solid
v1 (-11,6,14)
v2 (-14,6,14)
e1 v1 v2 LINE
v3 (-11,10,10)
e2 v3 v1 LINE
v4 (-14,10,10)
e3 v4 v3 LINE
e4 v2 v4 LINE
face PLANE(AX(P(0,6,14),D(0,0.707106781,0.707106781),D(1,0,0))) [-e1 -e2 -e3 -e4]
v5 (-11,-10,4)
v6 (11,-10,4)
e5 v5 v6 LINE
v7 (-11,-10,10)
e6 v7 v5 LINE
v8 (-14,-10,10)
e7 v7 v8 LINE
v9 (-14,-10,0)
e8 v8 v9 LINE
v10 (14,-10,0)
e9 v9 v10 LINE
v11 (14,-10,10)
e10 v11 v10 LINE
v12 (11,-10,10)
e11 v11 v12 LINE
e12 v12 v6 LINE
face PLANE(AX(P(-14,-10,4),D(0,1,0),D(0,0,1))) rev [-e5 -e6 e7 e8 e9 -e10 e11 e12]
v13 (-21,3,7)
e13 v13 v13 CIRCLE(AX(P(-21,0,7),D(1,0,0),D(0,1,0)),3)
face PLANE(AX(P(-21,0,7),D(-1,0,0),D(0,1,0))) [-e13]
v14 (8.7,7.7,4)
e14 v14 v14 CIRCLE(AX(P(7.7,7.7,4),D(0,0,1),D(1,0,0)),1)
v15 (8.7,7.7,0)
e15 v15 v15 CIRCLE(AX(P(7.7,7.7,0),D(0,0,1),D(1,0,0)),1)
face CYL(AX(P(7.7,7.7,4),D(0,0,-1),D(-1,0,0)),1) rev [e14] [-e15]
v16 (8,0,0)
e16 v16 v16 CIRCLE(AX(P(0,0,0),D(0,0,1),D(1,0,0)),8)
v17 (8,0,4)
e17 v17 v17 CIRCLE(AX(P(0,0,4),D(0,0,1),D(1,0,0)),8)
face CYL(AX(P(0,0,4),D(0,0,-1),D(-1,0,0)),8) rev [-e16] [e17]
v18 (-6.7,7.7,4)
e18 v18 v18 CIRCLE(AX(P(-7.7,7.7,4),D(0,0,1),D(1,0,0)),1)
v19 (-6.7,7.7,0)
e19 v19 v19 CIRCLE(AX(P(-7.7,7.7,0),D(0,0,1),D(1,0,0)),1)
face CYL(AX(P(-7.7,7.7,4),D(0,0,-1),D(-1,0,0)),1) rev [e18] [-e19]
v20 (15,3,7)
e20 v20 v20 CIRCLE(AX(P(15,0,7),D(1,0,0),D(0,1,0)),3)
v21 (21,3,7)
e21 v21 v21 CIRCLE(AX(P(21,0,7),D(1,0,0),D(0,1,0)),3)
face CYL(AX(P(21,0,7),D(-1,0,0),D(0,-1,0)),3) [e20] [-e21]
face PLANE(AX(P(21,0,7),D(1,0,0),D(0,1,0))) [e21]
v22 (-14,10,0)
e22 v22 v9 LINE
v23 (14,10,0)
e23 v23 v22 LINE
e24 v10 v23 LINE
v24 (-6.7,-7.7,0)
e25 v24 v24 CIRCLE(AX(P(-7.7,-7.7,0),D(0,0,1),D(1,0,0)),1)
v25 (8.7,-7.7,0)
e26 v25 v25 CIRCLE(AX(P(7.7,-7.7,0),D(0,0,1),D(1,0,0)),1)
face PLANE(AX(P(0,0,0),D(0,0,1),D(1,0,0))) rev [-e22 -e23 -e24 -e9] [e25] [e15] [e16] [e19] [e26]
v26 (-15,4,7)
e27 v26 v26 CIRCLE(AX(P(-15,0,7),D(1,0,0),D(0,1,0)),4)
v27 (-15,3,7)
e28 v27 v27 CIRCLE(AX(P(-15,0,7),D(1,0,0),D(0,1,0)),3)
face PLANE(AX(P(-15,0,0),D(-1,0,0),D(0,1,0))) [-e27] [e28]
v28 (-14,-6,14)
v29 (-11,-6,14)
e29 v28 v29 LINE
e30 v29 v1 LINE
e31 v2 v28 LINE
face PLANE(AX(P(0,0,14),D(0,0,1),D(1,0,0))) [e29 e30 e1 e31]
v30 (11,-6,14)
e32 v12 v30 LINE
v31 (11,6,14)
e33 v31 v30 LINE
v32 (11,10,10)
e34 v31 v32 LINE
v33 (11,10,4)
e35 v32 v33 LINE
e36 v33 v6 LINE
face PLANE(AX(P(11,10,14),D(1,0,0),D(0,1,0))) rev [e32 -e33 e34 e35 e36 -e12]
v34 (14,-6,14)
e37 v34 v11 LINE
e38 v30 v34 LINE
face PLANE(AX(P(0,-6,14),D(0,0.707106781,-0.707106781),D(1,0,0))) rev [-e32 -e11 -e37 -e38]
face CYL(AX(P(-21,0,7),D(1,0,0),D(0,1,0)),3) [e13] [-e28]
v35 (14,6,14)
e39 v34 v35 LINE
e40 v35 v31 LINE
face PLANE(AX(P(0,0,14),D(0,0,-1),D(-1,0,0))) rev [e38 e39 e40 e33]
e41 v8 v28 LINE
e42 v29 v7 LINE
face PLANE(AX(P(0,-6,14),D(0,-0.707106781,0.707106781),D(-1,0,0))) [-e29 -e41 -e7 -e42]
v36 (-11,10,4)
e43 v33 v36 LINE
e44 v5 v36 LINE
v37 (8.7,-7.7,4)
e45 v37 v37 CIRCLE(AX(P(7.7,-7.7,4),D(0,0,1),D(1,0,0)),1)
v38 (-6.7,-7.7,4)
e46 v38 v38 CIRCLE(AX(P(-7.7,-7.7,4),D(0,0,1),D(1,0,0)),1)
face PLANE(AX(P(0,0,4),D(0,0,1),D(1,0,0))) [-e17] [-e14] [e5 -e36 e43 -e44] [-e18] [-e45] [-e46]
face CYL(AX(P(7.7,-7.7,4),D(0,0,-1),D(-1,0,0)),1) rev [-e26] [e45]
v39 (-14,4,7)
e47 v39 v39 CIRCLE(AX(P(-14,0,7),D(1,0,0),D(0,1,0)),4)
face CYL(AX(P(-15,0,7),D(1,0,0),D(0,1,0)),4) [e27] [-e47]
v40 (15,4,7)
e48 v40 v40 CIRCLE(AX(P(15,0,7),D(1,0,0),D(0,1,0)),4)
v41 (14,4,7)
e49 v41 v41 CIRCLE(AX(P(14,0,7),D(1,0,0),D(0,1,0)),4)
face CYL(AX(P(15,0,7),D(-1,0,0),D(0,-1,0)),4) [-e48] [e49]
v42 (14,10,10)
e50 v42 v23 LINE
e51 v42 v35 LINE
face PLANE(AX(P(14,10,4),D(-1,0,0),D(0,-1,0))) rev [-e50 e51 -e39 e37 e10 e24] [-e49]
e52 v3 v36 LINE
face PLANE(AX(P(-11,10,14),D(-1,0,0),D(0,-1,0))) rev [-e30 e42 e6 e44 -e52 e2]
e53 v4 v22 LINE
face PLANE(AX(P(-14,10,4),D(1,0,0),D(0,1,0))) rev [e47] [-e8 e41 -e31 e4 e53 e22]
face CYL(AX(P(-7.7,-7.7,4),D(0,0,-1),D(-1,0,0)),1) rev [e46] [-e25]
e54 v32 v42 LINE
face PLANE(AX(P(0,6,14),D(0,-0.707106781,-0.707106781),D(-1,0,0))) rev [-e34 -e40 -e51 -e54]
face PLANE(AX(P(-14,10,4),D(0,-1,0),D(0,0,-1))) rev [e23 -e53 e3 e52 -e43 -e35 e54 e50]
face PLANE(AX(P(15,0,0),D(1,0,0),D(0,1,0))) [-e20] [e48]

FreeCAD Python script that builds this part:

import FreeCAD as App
import Part
import Sketcher

V = App.Vector


def edges_at(feature, points):
    """Names of the edges that pass closest to the given points."""
    edges = feature.Shape.Edges
    near = lambda p: min(range(len(edges)), key=lambda i: edges[i].distToShape(Part.Vertex(*p))[0])
    return sorted({f"Edge{near(p) + 1}" for p in points})


def add_polygon(sketch, points):
    """Adds a closed chain of lines whose ends are joined by coincident constraints."""
    first, n = sketch.GeometryCount, len(points)
    for a, b in zip(points, points[1:] + points[:1]):
        sketch.addGeometry(Part.LineSegment(App.Vector(*a, 0), App.Vector(*b, 0)), False)
    for i in range(n):
        sketch.addConstraint(Sketcher.Constraint("Coincident", first + i, 2, first + (i + 1) % n, 1))

doc = App.newDocument("Part")
body = doc.addObject("PartDesign::Body", "Body")

# Sketch on XY plane
sketch1 = body.newObject("Sketcher::SketchObject", "Sketch")
sketch1.AttachmentSupport = (doc.getObject("XY_Plane"), [""])
sketch1.MapMode = "FlatFace"
add_polygon(sketch1, [(-14, 10), (-14, -10), (14, -10), (14, 10)])  # lines 0-3
sketch1.addGeometry(Part.Circle(V(-7.7, -7.7, 0), V(0, 0, 1), 1), False)  # 4
sketch1.addGeometry(Part.Circle(V(7.7, -7.7, 0), V(0, 0, 1), 1), False)  # 5
sketch1.addGeometry(Part.Circle(V(-7.7, 7.7, 0), V(0, 0, 1), 1), False)  # 6
sketch1.addGeometry(Part.Circle(V(0, 0, 0), V(0, 0, 1), 8), False)  # 7
sketch1.addGeometry(Part.Circle(V(7.7, 7.7, 0), V(0, 0, 1), 1), False)  # 8
sketch1.addConstraint([
    Sketcher.Constraint("Vertical", 0),
    Sketcher.Constraint("Horizontal", 1),
    Sketcher.Constraint("Vertical", 2),
    Sketcher.Constraint("Horizontal", 3),
    Sketcher.Constraint("Coincident", 7, 3, -1, 1),
    Sketcher.Constraint("Equal", 4, 5),
    Sketcher.Constraint("Equal", 5, 6),
    Sketcher.Constraint("Equal", 6, 8),
    Sketcher.Constraint("Symmetric", 5, 3, 6, 3, -1, 1),
    Sketcher.Constraint("Symmetric", 4, 3, 8, 3, -1, 1),
    Sketcher.Constraint("Symmetric", 0, 2, 2, 2, -1, 1),
    Sketcher.Constraint("Symmetric", 4, 3, 5, 3, -2),
    Sketcher.Constraint("Diameter", 4, 2.0),
    Sketcher.Constraint("Diameter", 7, 16.0),
    Sketcher.Constraint("DistanceX", 1, 1, 1, 2, 28.0),
    Sketcher.Constraint("DistanceY", 0, 2, 0, 1, 20.0),
    Sketcher.Constraint("DistanceX", 4, 3, -1, 1, 7.7),
    Sketcher.Constraint("DistanceY", 4, 3, -1, 1, 7.7),
])
pad1 = body.newObject("PartDesign::Pad", "Pad")
pad1.Profile = sketch1
pad1.Length = 4

# Sketch on XY plane
sketch2 = body.newObject("Sketcher::SketchObject", "Sketch001")
sketch2.AttachmentSupport = (doc.getObject("XY_Plane"), [""])
sketch2.MapMode = "FlatFace"
sketch2.AttachmentOffset = App.Placement(V(0, 0, 4), App.Rotation())
add_polygon(sketch2, [(-14, 10), (-14, -10), (-11, -10), (-11, 10)])  # lines 0-3
add_polygon(sketch2, [(11, 10), (11, -10), (14, -10), (14, 10)])  # lines 4-7
sketch2.addConstraint([
    Sketcher.Constraint("Vertical", 0),
    Sketcher.Constraint("Horizontal", 1),
    Sketcher.Constraint("Vertical", 2),
    Sketcher.Constraint("Horizontal", 3),
    Sketcher.Constraint("Vertical", 4),
    Sketcher.Constraint("Horizontal", 5),
    Sketcher.Constraint("Vertical", 6),
    Sketcher.Constraint("Horizontal", 7),
    Sketcher.Constraint("Symmetric", 2, 2, 4, 2, -1, 1),
    Sketcher.Constraint("Symmetric", 0, 2, 6, 2, -1, 1),
    Sketcher.Constraint("Horizontal", 1, 2, 4, 2),
    Sketcher.Constraint("DistanceX", 1, 1, 1, 2, 3.0),
    Sketcher.Constraint("DistanceY", 0, 2, 0, 1, 20.0),
    Sketcher.Constraint("DistanceX", 0, 2, -1, 1, 14.0),
])
pad2 = body.newObject("PartDesign::Pad", "Pad001")
pad2.Profile = sketch2
pad2.Length = 10

# Sketch on YZ plane
sketch3 = body.newObject("Sketcher::SketchObject", "Sketch002")
sketch3.AttachmentSupport = (doc.getObject("YZ_Plane"), [""])
sketch3.MapMode = "FlatFace"
sketch3.AttachmentOffset = App.Placement(V(0, 0, 14), App.Rotation())
sketch3.addGeometry(Part.Circle(V(0, 7, 0), V(0, 0, 1), 4), False)
sketch3.addConstraint([
    Sketcher.Constraint("PointOnObject", 0, 3, -2),
    Sketcher.Constraint("Diameter", 0, 8.0),
    Sketcher.Constraint("DistanceY", -1, 1, 0, 3, 7.0),
])
pad3 = body.newObject("PartDesign::Pad", "Pad002")
pad3.Profile = sketch3
pad3.Length = 1

# Sketch on YZ plane
sketch4 = body.newObject("Sketcher::SketchObject", "Sketch003")
sketch4.AttachmentSupport = (doc.getObject("YZ_Plane"), [""])
sketch4.MapMode = "FlatFace"
sketch4.AttachmentOffset = App.Placement(V(0, 0, 15), App.Rotation())
sketch4.addGeometry(Part.Circle(V(0, 7, 0), V(0, 0, 1), 3), False)
sketch4.addConstraint([
    Sketcher.Constraint("PointOnObject", 0, 3, -2),
    Sketcher.Constraint("Diameter", 0, 6.0),
    Sketcher.Constraint("DistanceY", -1, 1, 0, 3, 7.0),
])
pad4 = body.newObject("PartDesign::Pad", "Pad003")
pad4.Profile = sketch4
pad4.Length = 6
doc.recompute()

chamfer = body.newObject("PartDesign::Chamfer", "Chamfer")
chamfer.Base = (pad4, edges_at(pad4, [
    (-12.5, -10, 14),
    (-12.5, 10, 14),
    (12.5, 10, 14),
    (12.5, -10, 14),
]))
chamfer.Size = 4
doc.recompute()

mirrored = body.newObject("PartDesign::Mirrored", "Mirrored")
mirrored.Originals = [pad3, pad4]
mirrored.MirrorPlane = (doc.getObject("YZ_Plane"), [""])
body.Tip = mirrored

doc.recompute()
